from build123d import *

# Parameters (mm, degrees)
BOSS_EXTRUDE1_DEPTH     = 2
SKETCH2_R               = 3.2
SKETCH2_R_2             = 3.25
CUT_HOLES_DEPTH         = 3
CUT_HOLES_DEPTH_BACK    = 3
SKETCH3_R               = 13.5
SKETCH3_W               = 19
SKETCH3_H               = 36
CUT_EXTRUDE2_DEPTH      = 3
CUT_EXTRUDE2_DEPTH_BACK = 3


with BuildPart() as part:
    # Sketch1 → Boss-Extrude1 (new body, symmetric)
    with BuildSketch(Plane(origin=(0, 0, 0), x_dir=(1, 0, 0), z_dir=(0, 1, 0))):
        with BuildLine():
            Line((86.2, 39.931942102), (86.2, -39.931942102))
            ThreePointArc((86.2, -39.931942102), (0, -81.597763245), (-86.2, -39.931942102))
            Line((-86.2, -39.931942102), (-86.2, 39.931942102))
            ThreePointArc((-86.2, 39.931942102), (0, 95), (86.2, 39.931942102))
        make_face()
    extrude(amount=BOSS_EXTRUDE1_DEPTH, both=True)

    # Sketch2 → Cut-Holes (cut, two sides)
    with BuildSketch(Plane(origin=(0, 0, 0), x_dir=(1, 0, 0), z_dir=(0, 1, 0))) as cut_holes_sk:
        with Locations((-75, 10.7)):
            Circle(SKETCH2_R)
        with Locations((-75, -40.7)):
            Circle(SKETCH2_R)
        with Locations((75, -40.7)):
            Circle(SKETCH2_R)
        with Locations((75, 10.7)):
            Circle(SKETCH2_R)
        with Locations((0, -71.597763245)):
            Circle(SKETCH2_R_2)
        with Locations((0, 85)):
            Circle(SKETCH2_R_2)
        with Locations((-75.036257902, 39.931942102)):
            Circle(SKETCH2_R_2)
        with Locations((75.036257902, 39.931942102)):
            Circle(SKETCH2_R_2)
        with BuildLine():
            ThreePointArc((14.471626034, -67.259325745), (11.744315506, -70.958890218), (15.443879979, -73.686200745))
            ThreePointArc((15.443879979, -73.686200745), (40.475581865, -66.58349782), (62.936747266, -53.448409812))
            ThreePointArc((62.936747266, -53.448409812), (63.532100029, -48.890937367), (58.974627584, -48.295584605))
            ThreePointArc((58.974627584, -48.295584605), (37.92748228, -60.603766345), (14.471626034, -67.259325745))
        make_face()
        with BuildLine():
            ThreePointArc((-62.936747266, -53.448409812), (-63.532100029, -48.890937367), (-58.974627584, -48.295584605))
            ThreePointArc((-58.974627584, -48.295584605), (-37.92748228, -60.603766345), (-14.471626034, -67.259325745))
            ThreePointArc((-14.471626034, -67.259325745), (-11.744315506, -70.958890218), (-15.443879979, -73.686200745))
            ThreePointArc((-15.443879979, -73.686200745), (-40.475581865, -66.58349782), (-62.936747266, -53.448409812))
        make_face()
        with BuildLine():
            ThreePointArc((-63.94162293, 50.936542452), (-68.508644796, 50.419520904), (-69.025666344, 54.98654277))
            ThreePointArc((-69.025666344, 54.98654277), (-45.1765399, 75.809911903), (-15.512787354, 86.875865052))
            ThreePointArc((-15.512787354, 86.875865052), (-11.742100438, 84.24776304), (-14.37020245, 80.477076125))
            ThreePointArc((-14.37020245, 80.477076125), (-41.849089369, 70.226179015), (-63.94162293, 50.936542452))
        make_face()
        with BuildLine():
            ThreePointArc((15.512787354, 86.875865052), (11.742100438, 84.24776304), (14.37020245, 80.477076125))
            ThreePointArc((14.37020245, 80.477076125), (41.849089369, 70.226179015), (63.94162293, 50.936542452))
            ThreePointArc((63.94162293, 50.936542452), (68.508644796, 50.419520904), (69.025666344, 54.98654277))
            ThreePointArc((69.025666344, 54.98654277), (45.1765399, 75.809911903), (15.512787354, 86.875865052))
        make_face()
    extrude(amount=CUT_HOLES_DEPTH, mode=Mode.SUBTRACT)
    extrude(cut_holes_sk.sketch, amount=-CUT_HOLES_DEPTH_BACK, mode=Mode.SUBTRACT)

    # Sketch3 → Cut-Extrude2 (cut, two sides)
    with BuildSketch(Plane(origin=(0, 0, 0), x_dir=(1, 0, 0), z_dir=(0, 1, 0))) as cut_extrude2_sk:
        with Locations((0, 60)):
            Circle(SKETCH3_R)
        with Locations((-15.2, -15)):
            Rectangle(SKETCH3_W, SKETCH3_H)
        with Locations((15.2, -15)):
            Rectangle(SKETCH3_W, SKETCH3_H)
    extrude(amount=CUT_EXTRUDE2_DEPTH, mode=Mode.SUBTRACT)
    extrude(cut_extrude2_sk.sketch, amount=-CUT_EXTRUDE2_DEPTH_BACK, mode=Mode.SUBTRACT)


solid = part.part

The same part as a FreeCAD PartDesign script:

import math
import FreeCAD as App
import Part
import Sketcher


def add_polygon(sketch, points):
    """Adds a closed chain of lines whose ends are joined by coincident constraints."""
    first, n = sketch.GeometryCount, len(points)
    for a, b in zip(points, points[1:] + points[:1]):
        sketch.addGeometry(Part.LineSegment(App.Vector(*a, 0), App.Vector(*b, 0)), False)
    for i in range(n):
        sketch.addConstraint(Sketcher.Constraint("Coincident", first + i, 2, first + (i + 1) % n, 1))

doc = App.newDocument("Part")
body = doc.addObject("PartDesign::Body", "Body")

# Sketch on XZ plane
sketch1 = body.newObject("Sketcher::SketchObject", "Sketch")
sketch1.AttachmentSupport = (doc.getObject("XZ_Plane"), [""])
sketch1.MapMode = "FlatFace"
sketch1.addGeometry([
    Part.LineSegment(App.Vector(86, 40, 0), App.Vector(86, -40, 0)),
    Part.ArcOfCircle(Part.Circle(App.Vector(0, 0, 0), App.Vector(0, 0, 1), 95), math.radians(-155), math.radians(-25)),
    Part.LineSegment(App.Vector(-86, -40, 0), App.Vector(-86, 40, 0)),
    Part.ArcOfCircle(Part.Circle(App.Vector(0, -28, 0), App.Vector(0, 0, 1), 110), math.radians(38), math.radians(142)),
], False)
sketch1.addConstraint([
    Sketcher.Constraint("Coincident", 0, 2, 1, 2),
    Sketcher.Constraint("Coincident", 1, 1, 2, 1),
    Sketcher.Constraint("Coincident", 2, 2, 3, 2),
    Sketcher.Constraint("Coincident", 3, 1, 0, 1),
    Sketcher.Constraint("Vertical", 0),
    Sketcher.Constraint("Vertical", 2),
    Sketcher.Constraint("Coincident", 1, 3, -1, 1),
    Sketcher.Constraint("Symmetric", 0, 2, 2, 2, -1, 1),
    Sketcher.Constraint("PointOnObject", 3, 3, -2),
    Sketcher.Constraint("Radius", 1, 95.0),
    Sketcher.Constraint("Radius", 3, 110.0),
    Sketcher.Constraint("DistanceX", -1, 1, 0, 2, 86.2),
])
pad1 = body.newObject("PartDesign::Pad", "Pad")
pad1.Profile = sketch1
pad1.Length = 4
pad1.Midplane = True

# Sketch on XZ plane
sketch2 = body.newObject("Sketcher::SketchObject", "Sketch001")
sketch2.AttachmentSupport = (doc.getObject("XZ_Plane"), [""])
sketch2.MapMode = "FlatFace"
sketch2.addGeometry([
    Part.Circle(App.Vector(-75, -10.7, 0), App.Vector(0, 0, 1), 3.2),  # 0
    Part.Circle(App.Vector(-75, 40.7, 0), App.Vector(0, 0, 1), 3.2),  # 1
    Part.Circle(App.Vector(75, 40.7, 0), App.Vector(0, 0, 1), 3.2),  # 2
    Part.Circle(App.Vector(75, -10.7, 0), App.Vector(0, 0, 1), 3.2),  # 3
    Part.Circle(App.Vector(0, 71.6, 0), App.Vector(0, 0, 1), 3.2),  # 4
    Part.Circle(App.Vector(0, -85, 0), App.Vector(0, 0, 1), 3.2),  # 5
    Part.Circle(App.Vector(-75, -39.9, 0), App.Vector(0, 0, 1), 3.2),  # 6
    Part.Circle(App.Vector(75, -39.9, 0), App.Vector(0, 0, 1), 3.2),  # 7
    Part.ArcOfCircle(Part.Circle(App.Vector(15, 70.5, 0), App.Vector(0, 0, 1), 3.2), math.radians(81), math.radians(261)),  # 8
    Part.ArcOfCircle(Part.Circle(App.Vector(0, -28.4, 0), App.Vector(0, 0, 1), 103.2), math.radians(52), math.radians(81)),  # 9
    Part.ArcOfCircle(Part.Circle(App.Vector(61, 50.9, 0), App.Vector(0, 0, 1), 3.2), math.radians(-128), math.radians(52)),  # 10
    Part.ArcOfCircle(Part.Circle(App.Vector(0, -28.4, 0), App.Vector(0, 0, 1), 96.8), math.radians(52), math.radians(81)),  # 11
    Part.ArcOfCircle(Part.Circle(App.Vector(-61, 50.9, 0), App.Vector(0, 0, 1), 3.2), math.radians(128), math.radians(308)),  # 12
    Part.ArcOfCircle(Part.Circle(App.Vector(0, -28.4, 0), App.Vector(0, 0, 1), 103.2), math.radians(99), math.radians(128)),  # 13
    Part.ArcOfCircle(Part.Circle(App.Vector(-15, 70.5, 0), App.Vector(0, 0, 1), 3.2), math.radians(-81), math.radians(99)),  # 14
    Part.ArcOfCircle(Part.Circle(App.Vector(0, -28.4, 0), App.Vector(0, 0, 1), 96.8), math.radians(99), math.radians(128)),  # 15
    Part.ArcOfCircle(Part.Circle(App.Vector(-66.5, -53, 0), App.Vector(0, 0, 1), 3.2), math.radians(39), math.radians(219)),  # 16
    Part.ArcOfCircle(Part.Circle(App.Vector(0, 0, 0), App.Vector(0, 0, 1), 81.7), math.radians(-141), math.radians(-100)),  # 17
    Part.ArcOfCircle(Part.Circle(App.Vector(-14.9, -83.7, 0), App.Vector(0, 0, 1), 3.2), math.radians(-100), math.radians(80)),  # 18
    Part.ArcOfCircle(Part.Circle(App.Vector(0, 0, 0), App.Vector(0, 0, 1), 88.2), math.radians(-141), math.radians(-100)),  # 19
    Part.ArcOfCircle(Part.Circle(App.Vector(14.9, -83.7, 0), App.Vector(0, 0, 1), 3.2), math.radians(100), math.radians(280)),  # 20
    Part.ArcOfCircle(Part.Circle(App.Vector(0, 0, 0), App.Vector(0, 0, 1), 81.7), math.radians(-80), math.radians(-39)),  # 21
    Part.ArcOfCircle(Part.Circle(App.Vector(66.5, -53, 0), App.Vector(0, 0, 1), 3.2), math.radians(-39), math.radians(141)),  # 22
    Part.ArcOfCircle(Part.Circle(App.Vector(0, 0, 0), App.Vector(0, 0, 1), 88.2), math.radians(-80), math.radians(-39)),  # 23
], False)
sketch2.addConstraint([
    Sketcher.Constraint("Tangent", 8, 1, 9, 2),
    Sketcher.Constraint("Tangent", 9, 1, 10, 2),
    Sketcher.Constraint("Tangent", 10, 1, 11, 1),
    Sketcher.Constraint("Tangent", 11, 2, 8, 2),
    Sketcher.Constraint("Tangent", 12, 1, 13, 2),
    Sketcher.Constraint("Tangent", 13, 1, 14, 2),
    Sketcher.Constraint("Tangent", 14, 1, 15, 1),
    Sketcher.Constraint("Tangent", 15, 2, 12, 2),
    Sketcher.Constraint("Tangent", 16, 1, 17, 1),
    Sketcher.Constraint("Tangent", 17, 2, 18, 2),
    Sketcher.Constraint("Tangent", 18, 1, 19, 2),
    Sketcher.Constraint("Tangent", 19, 1, 16, 2),
    Sketcher.Constraint("Tangent", 20, 1, 21, 1),
    Sketcher.Constraint("Tangent", 21, 2, 22, 2),
    Sketcher.Constraint("Tangent", 22, 1, 23, 2),
    Sketcher.Constraint("Tangent", 23, 1, 20, 2),
    Sketcher.Constraint("Coincident", 17, 3, -1, 1),
    Sketcher.Constraint("Coincident", 19, 3, -1, 1),
    Sketcher.Constraint("Coincident", 21, 3, -1, 1),
    Sketcher.Constraint("Coincident", 23, 3, -1, 1),
    Sketcher.Constraint("Coincident", 11, 3, 9, 3),
    Sketcher.Constraint("Coincident", 13, 3, 9, 3),
    Sketcher.Constraint("Coincident", 15, 3, 9, 3),
    Sketcher.Constraint("Equal", 0, 1),
    Sketcher.Constraint("Equal", 1, 2),
    Sketcher.Constraint("Equal", 2, 3),
    Sketcher.Constraint("Equal", 4, 5),
    Sketcher.Constraint("Equal", 5, 6),
    Sketcher.Constraint("Equal", 6, 7),
    Sketcher.Constraint("Equal", 7, 8),
    Sketcher.Constraint("Equal", 10, 12),
    Sketcher.Constraint("Equal", 9, 13),
    Sketcher.Constraint("Equal", 14, 16),
    Sketcher.Constraint("Equal", 18, 20),
    Sketcher.Constraint("Equal", 17, 21),
    Sketcher.Constraint("Symmetric", 1, 3, 2, 3, -2),
    Sketcher.Constraint("Symmetric", 0, 3, 3, 3, -2),
    Sketcher.Constraint("Symmetric", 6, 3, 7, 3, -2),
    Sketcher.Constraint("Symmetric", 10, 3, 12, 3, -2),
    Sketcher.Constraint("PointOnObject", 4, 3, -2),
    Sketcher.Constraint("PointOnObject", 5, 3, -2),
    Sketcher.Constraint("Horizontal", 8, 3, 14, 3),
    Sketcher.Constraint("Horizontal", 18, 3, 20, 3),
    Sketcher.Constraint("Horizontal", 16, 3, 22, 3),
    Sketcher.Constraint("Vertical", 0, 3, 1, 3),
    Sketcher.Constraint("Diameter", 0, 6.4),
    Sketcher.Constraint("Diameter", 4, 6.5),
    Sketcher.Constraint("Radius", 9, 103.25),
    Sketcher.Constraint("Radius", 17, 81.75),
    Sketcher.Constraint("DistanceX", 0, 3, -1, 1, 75.0),
    Sketcher.Constraint("DistanceY", 5, 3, -1, 1, 85.0),
    Sketcher.Constraint("DistanceY", 0, 3, -1, 1, 10.7),
    Sketcher.Constraint("DistanceY", -1, 1, 1, 3, 40.7),
    Sketcher.Constraint("DistanceY", 8, 3, 4, 3, 1.125),
    Sketcher.Constraint("DistanceX", 11, 2, 10, 1, 44.503002),
    Sketcher.Constraint("DistanceY", 16, 3, 16, 1, 2.025),
    Sketcher.Constraint("DistanceY", -1, 1, 8, 1, 73.686201),
    Sketcher.Constraint("DistanceY", 16, 3, 6, 3, 13.029601),
    Sketcher.Constraint("DistanceY", 18, 3, -1, 1, 83.676471),
    Sketcher.Constraint("DistanceX", -1, 1, 8, 1, 15.44388),
    Sketcher.Constraint("DistanceX", 10, 3, 7, 3, 14.08057),
])
pocket1 = body.newObject("PartDesign::Pocket", "Pocket")
pocket1.Profile = sketch2
pocket1.Type = "ThroughAll"
pocket1.Midplane = True

# Sketch on XZ plane
sketch3 = body.newObject("Sketcher::SketchObject", "Sketch002")
sketch3.AttachmentSupport = (doc.getObject("XZ_Plane"), [""])
sketch3.MapMode = "FlatFace"
sketch3.addGeometry(Part.Circle(App.Vector(0, -60, 0), App.Vector(0, 0, 1), 14), False)  # 0
add_polygon(sketch3, [(-25, -3), (-25, 33), (-6, 33), (-6, -3)])  # lines 1-4
add_polygon(sketch3, [(6, -3), (6, 33), (25, 33), (25, -3)])  # lines 5-8
sketch3.addConstraint([
    Sketcher.Constraint("Vertical", 1),
    Sketcher.Constraint("Horizontal", 2),
    Sketcher.Constraint("Vertical", 3),
    Sketcher.Constraint("Horizontal", 4),
    Sketcher.Constraint("Vertical", 5),
    Sketcher.Constraint("Horizontal", 6),
    Sketcher.Constraint("Vertical", 7),
    Sketcher.Constraint("Horizontal", 8),
    Sketcher.Constraint("Symmetric", 2, 2, 5, 2, -2),
    Sketcher.Constraint("Symmetric", 4, 2, 7, 2, -2),
    Sketcher.Constraint("PointOnObject", 0, 3, -2),
    Sketcher.Constraint("Diameter", 0, 27.0),
    Sketcher.Constraint("DistanceX", 2, 1, 2, 2, 19.0),
    Sketcher.Constraint("DistanceY", 1, 1, 1, 2, 36.0),
    Sketcher.Constraint("DistanceY", 0, 3, -1, 1, 60.0),
    Sketcher.Constraint("DistanceY", -1, 1, 1, 2, 33.0),
    Sketcher.Constraint("DistanceX", 1, 2, -1, 1, 24.7),
])
pocket2 = body.newObject("PartDesign::Pocket", "Pocket001")
pocket2.Profile = sketch3
pocket2.Type = "ThroughAll"
pocket2.Midplane = True

doc.recompute()
